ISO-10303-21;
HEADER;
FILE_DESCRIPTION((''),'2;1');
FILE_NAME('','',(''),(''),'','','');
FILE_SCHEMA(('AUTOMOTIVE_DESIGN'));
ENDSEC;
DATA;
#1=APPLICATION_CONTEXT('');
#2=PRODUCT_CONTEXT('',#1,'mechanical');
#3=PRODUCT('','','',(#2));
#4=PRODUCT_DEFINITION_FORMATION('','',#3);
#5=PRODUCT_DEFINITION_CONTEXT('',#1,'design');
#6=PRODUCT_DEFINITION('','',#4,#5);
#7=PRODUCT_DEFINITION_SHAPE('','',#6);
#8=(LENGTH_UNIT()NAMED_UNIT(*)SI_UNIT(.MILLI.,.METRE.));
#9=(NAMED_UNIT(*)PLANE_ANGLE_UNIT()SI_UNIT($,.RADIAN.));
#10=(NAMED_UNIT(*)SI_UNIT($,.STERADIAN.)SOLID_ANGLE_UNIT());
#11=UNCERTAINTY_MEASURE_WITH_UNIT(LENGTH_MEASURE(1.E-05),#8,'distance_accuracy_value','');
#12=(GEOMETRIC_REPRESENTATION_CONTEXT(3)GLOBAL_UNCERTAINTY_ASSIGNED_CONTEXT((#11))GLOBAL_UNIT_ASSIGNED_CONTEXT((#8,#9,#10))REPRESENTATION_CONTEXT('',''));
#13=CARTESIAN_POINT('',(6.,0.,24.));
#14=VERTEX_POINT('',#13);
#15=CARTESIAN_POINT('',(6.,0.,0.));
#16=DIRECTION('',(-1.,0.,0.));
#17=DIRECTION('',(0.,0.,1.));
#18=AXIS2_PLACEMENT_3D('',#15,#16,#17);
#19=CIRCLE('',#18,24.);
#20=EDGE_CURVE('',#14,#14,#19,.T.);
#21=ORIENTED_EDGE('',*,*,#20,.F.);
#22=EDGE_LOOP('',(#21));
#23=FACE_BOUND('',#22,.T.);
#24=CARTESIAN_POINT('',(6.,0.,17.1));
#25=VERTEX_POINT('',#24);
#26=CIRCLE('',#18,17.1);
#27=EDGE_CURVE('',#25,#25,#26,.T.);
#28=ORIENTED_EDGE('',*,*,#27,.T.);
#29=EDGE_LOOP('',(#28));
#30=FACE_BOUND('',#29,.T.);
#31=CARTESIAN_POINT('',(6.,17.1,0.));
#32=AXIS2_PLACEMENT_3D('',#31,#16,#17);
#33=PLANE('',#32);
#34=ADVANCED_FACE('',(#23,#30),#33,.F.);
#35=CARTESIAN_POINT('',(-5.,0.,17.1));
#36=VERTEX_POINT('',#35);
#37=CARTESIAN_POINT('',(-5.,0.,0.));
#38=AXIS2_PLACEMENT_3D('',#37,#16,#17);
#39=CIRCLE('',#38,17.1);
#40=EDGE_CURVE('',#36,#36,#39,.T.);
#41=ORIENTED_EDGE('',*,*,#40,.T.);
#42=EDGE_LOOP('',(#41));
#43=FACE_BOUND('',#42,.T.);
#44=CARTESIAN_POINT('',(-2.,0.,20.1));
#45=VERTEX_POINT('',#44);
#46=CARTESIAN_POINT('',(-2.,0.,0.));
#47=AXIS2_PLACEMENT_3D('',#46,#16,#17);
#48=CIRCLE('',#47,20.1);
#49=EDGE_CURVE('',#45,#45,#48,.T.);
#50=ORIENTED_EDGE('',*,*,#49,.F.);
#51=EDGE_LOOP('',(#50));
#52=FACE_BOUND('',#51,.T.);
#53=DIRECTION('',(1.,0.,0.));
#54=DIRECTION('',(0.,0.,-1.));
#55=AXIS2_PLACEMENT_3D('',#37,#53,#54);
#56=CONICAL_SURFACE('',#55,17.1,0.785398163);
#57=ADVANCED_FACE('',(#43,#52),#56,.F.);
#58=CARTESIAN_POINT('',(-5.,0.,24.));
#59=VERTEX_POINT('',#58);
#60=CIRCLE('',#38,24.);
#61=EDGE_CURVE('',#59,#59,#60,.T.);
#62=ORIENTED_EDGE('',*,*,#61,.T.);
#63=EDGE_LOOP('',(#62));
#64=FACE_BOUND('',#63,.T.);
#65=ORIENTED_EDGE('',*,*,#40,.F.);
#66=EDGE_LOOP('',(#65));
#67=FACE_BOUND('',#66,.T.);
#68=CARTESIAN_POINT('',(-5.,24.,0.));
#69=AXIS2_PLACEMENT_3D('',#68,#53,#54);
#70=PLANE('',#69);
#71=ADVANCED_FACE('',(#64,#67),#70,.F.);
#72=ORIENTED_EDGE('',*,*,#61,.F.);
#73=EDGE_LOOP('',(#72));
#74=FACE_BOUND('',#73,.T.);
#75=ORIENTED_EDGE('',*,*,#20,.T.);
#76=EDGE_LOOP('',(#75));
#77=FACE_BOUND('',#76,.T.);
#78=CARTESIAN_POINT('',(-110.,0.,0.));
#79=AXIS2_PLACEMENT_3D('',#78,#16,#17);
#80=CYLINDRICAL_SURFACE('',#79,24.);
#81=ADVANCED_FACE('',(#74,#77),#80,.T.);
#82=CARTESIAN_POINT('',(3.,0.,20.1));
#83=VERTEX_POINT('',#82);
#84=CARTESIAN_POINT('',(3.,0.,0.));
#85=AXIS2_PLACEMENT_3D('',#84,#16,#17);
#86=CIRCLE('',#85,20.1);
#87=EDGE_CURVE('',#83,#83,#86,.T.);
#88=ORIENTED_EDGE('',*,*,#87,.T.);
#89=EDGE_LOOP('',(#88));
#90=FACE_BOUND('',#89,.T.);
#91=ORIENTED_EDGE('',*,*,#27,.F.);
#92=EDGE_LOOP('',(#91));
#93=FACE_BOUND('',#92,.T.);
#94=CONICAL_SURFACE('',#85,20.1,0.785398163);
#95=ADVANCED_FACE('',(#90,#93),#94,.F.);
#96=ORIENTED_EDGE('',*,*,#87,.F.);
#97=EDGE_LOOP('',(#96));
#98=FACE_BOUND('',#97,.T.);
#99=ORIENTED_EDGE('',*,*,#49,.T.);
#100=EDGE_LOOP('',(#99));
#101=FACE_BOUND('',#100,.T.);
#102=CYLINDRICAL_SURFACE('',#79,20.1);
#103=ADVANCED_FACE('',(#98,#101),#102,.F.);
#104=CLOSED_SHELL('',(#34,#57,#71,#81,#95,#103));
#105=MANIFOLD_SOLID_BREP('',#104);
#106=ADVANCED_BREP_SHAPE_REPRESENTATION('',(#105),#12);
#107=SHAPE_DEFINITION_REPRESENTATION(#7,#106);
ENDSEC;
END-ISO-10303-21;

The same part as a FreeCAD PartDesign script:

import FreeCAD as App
import Part
import Sketcher


def add_polygon(sketch, points):
    """Adds a closed chain of lines whose ends are joined by coincident constraints."""
    first, n = sketch.GeometryCount, len(points)
    for a, b in zip(points, points[1:] + points[:1]):
        sketch.addGeometry(Part.LineSegment(App.Vector(*a, 0), App.Vector(*b, 0)), False)
    for i in range(n):
        sketch.addConstraint(Sketcher.Constraint("Coincident", first + i, 2, first + (i + 1) % n, 1))

doc = App.newDocument("Part")
body = doc.addObject("PartDesign::Body", "Body")

sketch1 = body.newObject("Sketcher::SketchObject", "Sketch")
sketch1.AttachmentSupport = (doc.getObject("XY_Plane"), [""])
sketch1.MapMode = "FlatFace"
add_polygon(sketch1, [(-5, 17.1), (-2, 20.1), (3, 20.1), (6, 17.1), (6, 24), (-5, 24)])
sketch1.addConstraint([
    Sketcher.Constraint("Horizontal", 1),
    Sketcher.Constraint("Vertical", 3),
    Sketcher.Constraint("Horizontal", 4),
    Sketcher.Constraint("Vertical", 5),
    Sketcher.Constraint("Perpendicular", 0, 2),
    Sketcher.Constraint("Horizontal", 2, 2, 5, 2),
    Sketcher.Constraint("Equal", 0, 2),
    Sketcher.Constraint("DistanceX", 1, 1, 1, 2, 5.0),
    Sketcher.Constraint("DistanceX", 4, 2, 4, 1, 11.0),
    Sketcher.Constraint("DistanceY", 3, 1, 3, 2, 6.9),
    Sketcher.Constraint("DistanceX", 0, 2, -1, 1, 2.0),
    Sketcher.Constraint("DistanceY", -1, 1, 3, 2, 24.0),
])
revolution = body.newObject("PartDesign::Revolution", "Revolution")
revolution.Profile = sketch1
revolution.ReferenceAxis = (sketch1, ["H_Axis"])
revolution.Angle = 360

doc.recompute()
